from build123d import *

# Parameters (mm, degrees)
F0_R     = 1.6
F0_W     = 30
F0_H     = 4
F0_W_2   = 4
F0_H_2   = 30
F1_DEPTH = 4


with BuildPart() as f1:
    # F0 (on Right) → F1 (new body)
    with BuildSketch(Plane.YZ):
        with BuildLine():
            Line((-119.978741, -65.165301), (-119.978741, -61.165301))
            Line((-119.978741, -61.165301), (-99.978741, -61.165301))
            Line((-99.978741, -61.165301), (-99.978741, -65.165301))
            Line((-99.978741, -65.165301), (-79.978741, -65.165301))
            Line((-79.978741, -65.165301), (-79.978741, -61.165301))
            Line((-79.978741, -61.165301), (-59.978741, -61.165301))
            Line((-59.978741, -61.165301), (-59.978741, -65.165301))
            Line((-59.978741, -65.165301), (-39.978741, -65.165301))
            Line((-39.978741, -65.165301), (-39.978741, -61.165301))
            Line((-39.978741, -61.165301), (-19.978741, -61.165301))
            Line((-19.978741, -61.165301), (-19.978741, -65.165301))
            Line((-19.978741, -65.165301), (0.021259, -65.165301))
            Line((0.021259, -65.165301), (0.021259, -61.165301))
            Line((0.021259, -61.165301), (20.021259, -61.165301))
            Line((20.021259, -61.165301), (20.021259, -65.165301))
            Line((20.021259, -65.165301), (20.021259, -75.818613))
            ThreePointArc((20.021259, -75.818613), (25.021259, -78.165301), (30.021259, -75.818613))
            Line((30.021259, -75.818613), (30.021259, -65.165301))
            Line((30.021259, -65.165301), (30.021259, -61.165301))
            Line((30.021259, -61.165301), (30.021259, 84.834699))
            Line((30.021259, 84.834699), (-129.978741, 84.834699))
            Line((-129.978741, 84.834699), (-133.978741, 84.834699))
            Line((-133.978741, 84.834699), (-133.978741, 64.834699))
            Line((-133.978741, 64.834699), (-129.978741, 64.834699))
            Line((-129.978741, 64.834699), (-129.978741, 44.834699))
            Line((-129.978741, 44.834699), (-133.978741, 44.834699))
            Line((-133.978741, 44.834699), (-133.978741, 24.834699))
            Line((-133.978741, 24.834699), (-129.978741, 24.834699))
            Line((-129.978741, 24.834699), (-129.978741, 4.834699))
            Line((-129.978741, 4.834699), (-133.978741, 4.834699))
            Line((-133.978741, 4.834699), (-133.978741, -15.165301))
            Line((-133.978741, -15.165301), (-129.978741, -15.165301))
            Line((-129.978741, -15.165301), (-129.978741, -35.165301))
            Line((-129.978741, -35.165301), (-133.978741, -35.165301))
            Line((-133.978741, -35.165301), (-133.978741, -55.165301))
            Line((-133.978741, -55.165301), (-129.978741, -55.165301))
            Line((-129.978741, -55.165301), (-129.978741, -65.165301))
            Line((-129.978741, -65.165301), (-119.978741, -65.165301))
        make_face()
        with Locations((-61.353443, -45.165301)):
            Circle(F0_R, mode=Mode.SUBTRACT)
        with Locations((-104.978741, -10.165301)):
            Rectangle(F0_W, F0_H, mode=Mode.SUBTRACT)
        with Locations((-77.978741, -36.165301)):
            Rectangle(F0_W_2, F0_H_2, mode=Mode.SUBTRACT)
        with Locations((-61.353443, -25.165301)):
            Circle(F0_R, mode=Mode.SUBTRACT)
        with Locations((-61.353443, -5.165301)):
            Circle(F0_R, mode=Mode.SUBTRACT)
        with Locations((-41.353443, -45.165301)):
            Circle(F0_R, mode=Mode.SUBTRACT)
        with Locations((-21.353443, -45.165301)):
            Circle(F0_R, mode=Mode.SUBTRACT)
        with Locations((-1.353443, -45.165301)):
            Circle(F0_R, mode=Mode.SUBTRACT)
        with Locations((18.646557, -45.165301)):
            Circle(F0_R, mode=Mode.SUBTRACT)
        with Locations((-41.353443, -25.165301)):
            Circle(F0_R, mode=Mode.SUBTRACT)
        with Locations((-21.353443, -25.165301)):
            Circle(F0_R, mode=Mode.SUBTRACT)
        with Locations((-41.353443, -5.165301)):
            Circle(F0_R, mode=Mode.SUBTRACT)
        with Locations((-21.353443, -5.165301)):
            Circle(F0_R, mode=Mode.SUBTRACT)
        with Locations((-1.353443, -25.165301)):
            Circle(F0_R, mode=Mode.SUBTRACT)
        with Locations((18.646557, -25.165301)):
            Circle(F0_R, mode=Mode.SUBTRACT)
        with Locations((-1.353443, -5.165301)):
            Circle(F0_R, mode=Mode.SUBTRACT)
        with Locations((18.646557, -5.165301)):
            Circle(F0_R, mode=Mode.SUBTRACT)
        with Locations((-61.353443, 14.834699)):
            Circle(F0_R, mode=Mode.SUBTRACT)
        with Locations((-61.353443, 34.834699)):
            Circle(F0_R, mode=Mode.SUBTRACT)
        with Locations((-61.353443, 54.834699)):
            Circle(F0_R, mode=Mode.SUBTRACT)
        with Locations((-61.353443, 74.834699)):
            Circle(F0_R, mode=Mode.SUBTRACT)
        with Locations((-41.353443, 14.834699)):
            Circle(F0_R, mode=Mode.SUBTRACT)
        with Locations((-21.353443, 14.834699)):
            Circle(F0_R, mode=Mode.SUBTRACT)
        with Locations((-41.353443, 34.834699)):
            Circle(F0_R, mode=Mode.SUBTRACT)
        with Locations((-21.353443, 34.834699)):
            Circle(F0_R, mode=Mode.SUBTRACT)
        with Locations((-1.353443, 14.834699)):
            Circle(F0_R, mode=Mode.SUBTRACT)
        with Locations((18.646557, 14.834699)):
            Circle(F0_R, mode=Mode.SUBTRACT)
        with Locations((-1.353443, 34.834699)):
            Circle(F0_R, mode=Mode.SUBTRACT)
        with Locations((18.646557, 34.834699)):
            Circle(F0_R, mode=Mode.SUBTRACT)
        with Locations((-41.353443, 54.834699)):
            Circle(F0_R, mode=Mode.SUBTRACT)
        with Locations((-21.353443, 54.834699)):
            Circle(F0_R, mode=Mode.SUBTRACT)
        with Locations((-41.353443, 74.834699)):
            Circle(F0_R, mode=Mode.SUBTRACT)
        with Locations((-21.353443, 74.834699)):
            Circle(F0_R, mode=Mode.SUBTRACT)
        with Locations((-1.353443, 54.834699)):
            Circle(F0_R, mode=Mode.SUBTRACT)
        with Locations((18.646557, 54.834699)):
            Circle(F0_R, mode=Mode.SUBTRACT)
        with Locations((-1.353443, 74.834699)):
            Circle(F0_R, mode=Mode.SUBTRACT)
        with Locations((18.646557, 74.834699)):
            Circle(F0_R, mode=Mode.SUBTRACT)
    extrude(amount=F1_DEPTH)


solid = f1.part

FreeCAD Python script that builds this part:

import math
import FreeCAD as App
import Part
import Sketcher
Q = App.Units.Quantity


def add_polygon(sketch, points):
    """Adds a closed chain of lines whose ends are joined by coincident constraints."""
    first, n = sketch.GeometryCount, len(points)
    for a, b in zip(points, points[1:] + points[:1]):
        sketch.addGeometry(Part.LineSegment(App.Vector(*a, 0), App.Vector(*b, 0)), False)
    for i in range(n):
        sketch.addConstraint(Sketcher.Constraint("Coincident", first + i, 2, first + (i + 1) % n, 1))

doc = App.newDocument("Part")
body = doc.addObject("PartDesign::Body", "Body")

sketch1 = body.newObject("Sketcher::SketchObject", "Sketch")
sketch1.AttachmentSupport = (doc.getObject("YZ_Plane"), [""])
sketch1.MapMode = "FlatFace"
sketch1.addGeometry(Part.LineSegment(App.Vector(-120, -65.2, 0), App.Vector(-120, -61.2, 0)), False)
sketch1.addGeometry(Part.LineSegment(App.Vector(-120, -61.2, 0), App.Vector(-100, -61.2, 0)), False)
sketch1.addGeometry(Part.LineSegment(App.Vector(-100, -61.2, 0), App.Vector(-100, -65.2, 0)), False)
sketch1.addGeometry(Part.LineSegment(App.Vector(-100, -65.2, 0), App.Vector(-80, -65.2, 0)), False)
sketch1.addGeometry(Part.LineSegment(App.Vector(-80, -65.2, 0), App.Vector(-80, -61.2, 0)), False)
sketch1.addGeometry(Part.LineSegment(App.Vector(-80, -61.2, 0), App.Vector(-60, -61.2, 0)), False)
sketch1.addGeometry(Part.LineSegment(App.Vector(-60, -61.2, 0), App.Vector(-60, -65.2, 0)), False)
sketch1.addGeometry(Part.LineSegment(App.Vector(-60, -65.2, 0), App.Vector(-40, -65.2, 0)), False)
sketch1.addGeometry(Part.LineSegment(App.Vector(-40, -65.2, 0), App.Vector(-40, -61.2, 0)), False)
sketch1.addGeometry(Part.LineSegment(App.Vector(-40, -61.2, 0), App.Vector(-20, -61.2, 0)), False)
sketch1.addGeometry(Part.LineSegment(App.Vector(-20, -61.2, 0), App.Vector(-20, -65.2, 0)), False)
sketch1.addGeometry(Part.LineSegment(App.Vector(-20, -65.2, 0), App.Vector(0, -65.2, 0)), False)
sketch1.addGeometry(Part.LineSegment(App.Vector(0, -65.2, 0), App.Vector(0, -61.2, 0)), False)
sketch1.addGeometry(Part.LineSegment(App.Vector(0, -61.2, 0), App.Vector(20, -61.2, 0)), False)
sketch1.addGeometry(Part.LineSegment(App.Vector(20, -61.2, 0), App.Vector(20, -75.8, 0)), False)
sketch1.addGeometry(Part.ArcOfCircle(Part.Circle(App.Vector(25, -71.7, 0), App.Vector(0, 0, 1), 6.5), math.radians(-140), math.radians(-40)), False)
sketch1.addGeometry(Part.LineSegment(App.Vector(30, -75.8, 0), App.Vector(30, 84.8, 0)), False)
sketch1.addGeometry(Part.LineSegment(App.Vector(30, 84.8, 0), App.Vector(-134, 84.8, 0)), False)
sketch1.addGeometry(Part.LineSegment(App.Vector(-134, 84.8, 0), App.Vector(-134, 64.8, 0)), False)
sketch1.addGeometry(Part.LineSegment(App.Vector(-134, 64.8, 0), App.Vector(-130, 64.8, 0)), False)
sketch1.addGeometry(Part.LineSegment(App.Vector(-130, 64.8, 0), App.Vector(-130, 44.8, 0)), False)
sketch1.addGeometry(Part.LineSegment(App.Vector(-130, 44.8, 0), App.Vector(-134, 44.8, 0)), False)
sketch1.addGeometry(Part.LineSegment(App.Vector(-134, 44.8, 0), App.Vector(-134, 24.8, 0)), False)
sketch1.addGeometry(Part.LineSegment(App.Vector(-134, 24.8, 0), App.Vector(-130, 24.8, 0)), False)
sketch1.addGeometry(Part.LineSegment(App.Vector(-130, 24.8, 0), App.Vector(-130, 4.8, 0)), False)
sketch1.addGeometry(Part.LineSegment(App.Vector(-130, 4.8, 0), App.Vector(-134, 4.8, 0)), False)
sketch1.addGeometry(Part.LineSegment(App.Vector(-134, 4.8, 0), App.Vector(-134, -15.2, 0)), False)
sketch1.addGeometry(Part.LineSegment(App.Vector(-134, -15.2, 0), App.Vector(-130, -15.2, 0)), False)
sketch1.addGeometry(Part.LineSegment(App.Vector(-130, -15.2, 0), App.Vector(-130, -35.2, 0)), False)
sketch1.addGeometry(Part.LineSegment(App.Vector(-130, -35.2, 0), App.Vector(-134, -35.2, 0)), False)
sketch1.addGeometry(Part.LineSegment(App.Vector(-134, -35.2, 0), App.Vector(-134, -55.2, 0)), False)
sketch1.addGeometry(Part.LineSegment(App.Vector(-134, -55.2, 0), App.Vector(-130, -55.2, 0)), False)
sketch1.addGeometry(Part.LineSegment(App.Vector(-130, -55.2, 0), App.Vector(-130, -65.2, 0)), False)
sketch1.addGeometry(Part.LineSegment(App.Vector(-130, -65.2, 0), App.Vector(-120, -65.2, 0)), False)
add_polygon(sketch1, [(-76, -51.2), (-80, -51.2), (-80, -21.2), (-76, -21.2)])
sketch1.addGeometry(Part.Circle(App.Vector(-61.4, -45.2, 0), App.Vector(0, 0, 1), 1.6), False)
sketch1.addGeometry(Part.Circle(App.Vector(-61.4, -25.2, 0), App.Vector(0, 0, 1), 1.6), False)
add_polygon(sketch1, [(-90, -12.2), (-120, -12.2), (-120, -8.2), (-90, -8.2)])
sketch1.addGeometry(Part.Circle(App.Vector(-61.4, -5.2, 0), App.Vector(0, 0, 1), 1.6), False)
sketch1.addGeometry(Part.Circle(App.Vector(-41.4, -45.2, 0), App.Vector(0, 0, 1), 1.6), False)
sketch1.addGeometry(Part.Circle(App.Vector(-21.4, -45.2, 0), App.Vector(0, 0, 1), 1.6), False)
sketch1.addGeometry(Part.Circle(App.Vector(-41.4, -25.2, 0), App.Vector(0, 0, 1), 1.6), False)
sketch1.addGeometry(Part.Circle(App.Vector(-21.4, -25.2, 0), App.Vector(0, 0, 1), 1.6), False)
sketch1.addGeometry(Part.Circle(App.Vector(-1.4, -45.2, 0), App.Vector(0, 0, 1), 1.6), False)
sketch1.addGeometry(Part.Circle(App.Vector(18.6, -45.2, 0), App.Vector(0, 0, 1), 1.6), False)
sketch1.addGeometry(Part.Circle(App.Vector(-1.4, -25.2, 0), App.Vector(0, 0, 1), 1.6), False)
sketch1.addGeometry(Part.Circle(App.Vector(18.6, -25.2, 0), App.Vector(0, 0, 1), 1.6), False)
sketch1.addGeometry(Part.Circle(App.Vector(-41.4, -5.2, 0), App.Vector(0, 0, 1), 1.6), False)
sketch1.addGeometry(Part.Circle(App.Vector(-21.4, -5.2, 0), App.Vector(0, 0, 1), 1.6), False)
sketch1.addGeometry(Part.Circle(App.Vector(-1.4, -5.2, 0), App.Vector(0, 0, 1), 1.6), False)
sketch1.addGeometry(Part.Circle(App.Vector(18.6, -5.2, 0), App.Vector(0, 0, 1), 1.6), False)
sketch1.addGeometry(Part.Circle(App.Vector(-61.4, 14.8, 0), App.Vector(0, 0, 1), 1.6), False)
sketch1.addGeometry(Part.Circle(App.Vector(-61.4, 34.8, 0), App.Vector(0, 0, 1), 1.6), False)
sketch1.addGeometry(Part.Circle(App.Vector(-61.4, 54.8, 0), App.Vector(0, 0, 1), 1.6), False)
sketch1.addGeometry(Part.Circle(App.Vector(-61.4, 74.8, 0), App.Vector(0, 0, 1), 1.6), False)
sketch1.addGeometry(Part.Circle(App.Vector(-41.4, 14.8, 0), App.Vector(0, 0, 1), 1.6), False)
sketch1.addGeometry(Part.Circle(App.Vector(-21.4, 14.8, 0), App.Vector(0, 0, 1), 1.6), False)
sketch1.addGeometry(Part.Circle(App.Vector(-41.4, 34.8, 0), App.Vector(0, 0, 1), 1.6), False)
sketch1.addGeometry(Part.Circle(App.Vector(-21.4, 34.8, 0), App.Vector(0, 0, 1), 1.6), False)
sketch1.addGeometry(Part.Circle(App.Vector(-1.4, 14.8, 0), App.Vector(0, 0, 1), 1.6), False)
sketch1.addGeometry(Part.Circle(App.Vector(18.6, 14.8, 0), App.Vector(0, 0, 1), 1.6), False)
sketch1.addGeometry(Part.Circle(App.Vector(-1.4, 34.8, 0), App.Vector(0, 0, 1), 1.6), False)
sketch1.addGeometry(Part.Circle(App.Vector(18.6, 34.8, 0), App.Vector(0, 0, 1), 1.6), False)
sketch1.addGeometry(Part.Circle(App.Vector(-41.4, 54.8, 0), App.Vector(0, 0, 1), 1.6), False)
sketch1.addGeometry(Part.Circle(App.Vector(-21.4, 54.8, 0), App.Vector(0, 0, 1), 1.6), False)
sketch1.addGeometry(Part.Circle(App.Vector(-41.4, 74.8, 0), App.Vector(0, 0, 1), 1.6), False)
sketch1.addGeometry(Part.Circle(App.Vector(-21.4, 74.8, 0), App.Vector(0, 0, 1), 1.6), False)
sketch1.addGeometry(Part.Circle(App.Vector(-1.4, 54.8, 0), App.Vector(0, 0, 1), 1.6), False)
sketch1.addGeometry(Part.Circle(App.Vector(18.6, 54.8, 0), App.Vector(0, 0, 1), 1.6), False)
sketch1.addGeometry(Part.Circle(App.Vector(-1.4, 74.8, 0), App.Vector(0, 0, 1), 1.6), False)
sketch1.addGeometry(Part.Circle(App.Vector(18.6, 74.8, 0), App.Vector(0, 0, 1), 1.6), False)
sketch1.addConstraint([
    Sketcher.Constraint("Coincident", 0, 2, 1, 1),
    Sketcher.Constraint("Coincident", 1, 2, 2, 1),
    Sketcher.Constraint("Coincident", 2, 2, 3, 1),
    Sketcher.Constraint("Coincident", 3, 2, 4, 1),
    Sketcher.Constraint("Coincident", 4, 2, 5, 1),
    Sketcher.Constraint("Coincident", 5, 2, 6, 1),
    Sketcher.Constraint("Coincident", 6, 2, 7, 1),
    Sketcher.Constraint("Coincident", 7, 2, 8, 1),
    Sketcher.Constraint("Coincident", 8, 2, 9, 1),
    Sketcher.Constraint("Coincident", 9, 2, 10, 1),
    Sketcher.Constraint("Coincident", 10, 2, 11, 1),
    Sketcher.Constraint("Coincident", 11, 2, 12, 1),
    Sketcher.Constraint("Coincident", 12, 2, 13, 1),
    Sketcher.Constraint("Coincident", 13, 2, 14, 1),
    Sketcher.Constraint("Coincident", 14, 2, 15, 1),
    Sketcher.Constraint("Coincident", 15, 2, 16, 1),
    Sketcher.Constraint("Coincident", 16, 2, 17, 1),
    Sketcher.Constraint("Coincident", 17, 2, 18, 1),
    Sketcher.Constraint("Coincident", 18, 2, 19, 1),
    Sketcher.Constraint("Coincident", 19, 2, 20, 1),
    Sketcher.Constraint("Coincident", 20, 2, 21, 1),
    Sketcher.Constraint("Coincident", 21, 2, 22, 1),
    Sketcher.Constraint("Coincident", 22, 2, 23, 1),
    Sketcher.Constraint("Coincident", 23, 2, 24, 1),
    Sketcher.Constraint("Coincident", 24, 2, 25, 1),
    Sketcher.Constraint("Coincident", 25, 2, 26, 1),
    Sketcher.Constraint("Coincident", 26, 2, 27, 1),
    Sketcher.Constraint("Coincident", 27, 2, 28, 1),
    Sketcher.Constraint("Coincident", 28, 2, 29, 1),
    Sketcher.Constraint("Coincident", 29, 2, 30, 1),
    Sketcher.Constraint("Coincident", 30, 2, 31, 1),
    Sketcher.Constraint("Coincident", 31, 2, 32, 1),
    Sketcher.Constraint("Coincident", 32, 2, 33, 1),
    Sketcher.Constraint("Coincident", 33, 2, 0, 1),
    Sketcher.Constraint("Vertical", 0),
    Sketcher.Constraint("Horizontal", 1),
    Sketcher.Constraint("Vertical", 2),
    Sketcher.Constraint("Horizontal", 3),
    Sketcher.Constraint("Vertical", 4),
    Sketcher.Constraint("Horizontal", 5),
    Sketcher.Constraint("Vertical", 6),
    Sketcher.Constraint("Horizontal", 7),
    Sketcher.Constraint("Vertical", 8),
    Sketcher.Constraint("Horizontal", 9),
    Sketcher.Constraint("Vertical", 10),
    Sketcher.Constraint("Horizontal", 11),
    Sketcher.Constraint("Vertical", 12),
    Sketcher.Constraint("Horizontal", 13),
    Sketcher.Constraint("Vertical", 14),
    Sketcher.Constraint("Vertical", 16),
    Sketcher.Constraint("Horizontal", 17),
    Sketcher.Constraint("Vertical", 18),
    Sketcher.Constraint("Horizontal", 19),
    Sketcher.Constraint("Vertical", 20),
    Sketcher.Constraint("Horizontal", 21),
    Sketcher.Constraint("Vertical", 22),
    Sketcher.Constraint("Horizontal", 23),
    Sketcher.Constraint("Vertical", 24),
    Sketcher.Constraint("Horizontal", 25),
    Sketcher.Constraint("Vertical", 26),
    Sketcher.Constraint("Horizontal", 27),
    Sketcher.Constraint("Vertical", 28),
    Sketcher.Constraint("Horizontal", 29),
    Sketcher.Constraint("Vertical", 30),
    Sketcher.Constraint("Horizontal", 31),
    Sketcher.Constraint("Vertical", 32),
    Sketcher.Constraint("Horizontal", 33),
    Sketcher.Constraint("Horizontal", 34),
    Sketcher.Constraint("Vertical", 35),
    Sketcher.Constraint("Horizontal", 36),
    Sketcher.Constraint("Vertical", 37),
    Sketcher.Constraint("Horizontal", 40),
    Sketcher.Constraint("Vertical", 41),
    Sketcher.Constraint("Horizontal", 42),
    Sketcher.Constraint("Vertical", 43),
    Sketcher.Constraint("Equal", 38, 39),
    Sketcher.Constraint("Equal", 39, 44),
    Sketcher.Constraint("Equal", 44, 45),
    Sketcher.Constraint("Equal", 45, 46),
    Sketcher.Constraint("Equal", 46, 47),
    Sketcher.Constraint("Equal", 47, 48),
    Sketcher.Constraint("Equal", 48, 49),
    Sketcher.Constraint("Equal", 49, 50),
    Sketcher.Constraint("Equal", 50, 51),
    Sketcher.Constraint("Equal", 51, 52),
    Sketcher.Constraint("Equal", 52, 53),
    Sketcher.Constraint("Equal", 53, 54),
    Sketcher.Constraint("Equal", 54, 55),
    Sketcher.Constraint("Equal", 55, 56),
    Sketcher.Constraint("Equal", 56, 57),
    Sketcher.Constraint("Equal", 57, 58),
    Sketcher.Constraint("Equal", 58, 59),
    Sketcher.Constraint("Equal", 59, 60),
    Sketcher.Constraint("Equal", 60, 61),
    Sketcher.Constraint("Equal", 61, 62),
    Sketcher.Constraint("Equal", 62, 63),
    Sketcher.Constraint("Equal", 63, 64),
    Sketcher.Constraint("Equal", 64, 65),
    Sketcher.Constraint("Equal", 65, 66),
    Sketcher.Constraint("Equal", 66, 67),
    Sketcher.Constraint("Equal", 67, 68),
    Sketcher.Constraint("Equal", 68, 69),
    Sketcher.Constraint("Equal", 69, 70),
    Sketcher.Constraint("Equal", 70, 71),
    Sketcher.Constraint("Equal", 71, 72),
    Sketcher.Constraint("Equal", 72, 73),
    Sketcher.Constraint("Equal", 73, 74),
    Sketcher.Constraint("Equal", 74, 75),
    Sketcher.Constraint("Equal", 75, 76),
    Sketcher.Constraint("Horizontal", 38, 3, 45, 3),
    Sketcher.Constraint("Horizontal", 45, 3, 46, 3),
    Sketcher.Constraint("Horizontal", 39, 3, 47, 3),
    Sketcher.Constraint("Horizontal", 47, 3, 48, 3),
    Sketcher.Constraint("Horizontal", 46, 3, 49, 3),
    Sketcher.Constraint("Horizontal", 49, 3, 50, 3),
    Sketcher.Constraint("Horizontal", 48, 3, 51, 3),
    Sketcher.Constraint("Horizontal", 51, 3, 52, 3),
    Sketcher.Constraint("Horizontal", 44, 3, 53, 3),
    Sketcher.Constraint("Horizontal", 53, 3, 54, 3),
    Sketcher.Constraint("Horizontal", 54, 3, 55, 3),
    Sketcher.Constraint("Horizontal", 55, 3, 56, 3),
    Sketcher.Constraint("Horizontal", 57, 3, 61, 3),
    Sketcher.Constraint("Horizontal", 61, 3, 62, 3),
    Sketcher.Constraint("Horizontal", 58, 3, 63, 3),
    Sketcher.Constraint("Horizontal", 63, 3, 64, 3),
    Sketcher.Constraint("Horizontal", 62, 3, 65, 3),
    Sketcher.Constraint("Horizontal", 65, 3, 66, 3),
    Sketcher.Constraint("Horizontal", 64, 3, 67, 3),
    Sketcher.Constraint("Horizontal", 67, 3, 68, 3),
    Sketcher.Constraint("Horizontal", 59, 3, 69, 3),
    Sketcher.Constraint("Horizontal", 69, 3, 70, 3),
    Sketcher.Constraint("Horizontal", 60, 3, 71, 3),
    Sketcher.Constraint("Horizontal", 71, 3, 72, 3),
    Sketcher.Constraint("Horizontal", 70, 3, 73, 3),
    Sketcher.Constraint("Horizontal", 73, 3, 74, 3),
    Sketcher.Constraint("Horizontal", 72, 3, 75, 3),
    Sketcher.Constraint("Horizontal", 75, 3, 76, 3),
    Sketcher.Constraint("Horizontal", 1, 2, 4, 2),
    Sketcher.Constraint("Horizontal", 3, 2, 6, 2),
    Sketcher.Constraint("Horizontal", 5, 2, 8, 2),
    Sketcher.Constraint("Horizontal", 7, 2, 10, 2),
    Sketcher.Constraint("Horizontal", 9, 2, 12, 2),
    Sketcher.Constraint("Horizontal", 14, 2, 15, 2),
    Sketcher.Constraint("Horizontal", 11, 2, 32, 2),
    Sketcher.Constraint("Vertical", 38, 3, 39, 3),
    Sketcher.Constraint("Vertical", 39, 3, 44, 3),
    Sketcher.Constraint("Vertical", 45, 3, 47, 3),
    Sketcher.Constraint("Vertical", 46, 3, 48, 3),
    Sketcher.Constraint("Vertical", 49, 3, 51, 3),
    Sketcher.Constraint("Vertical", 50, 3, 52, 3),
    Sketcher.Constraint("Vertical", 47, 3, 53, 3),
    Sketcher.Constraint("Vertical", 48, 3, 54, 3),
    Sketcher.Constraint("Vertical", 51, 3, 55, 3),
    Sketcher.Constraint("Vertical", 52, 3, 56, 3),
    Sketcher.Constraint("Vertical", 44, 3, 57, 3),
    Sketcher.Constraint("Vertical", 57, 3, 58, 3),
    Sketcher.Constraint("Vertical", 58, 3, 59, 3),
    Sketcher.Constraint("Vertical", 59, 3, 60, 3),
    Sketcher.Constraint("Vertical", 53, 3, 61, 3),
    Sketcher.Constraint("Vertical", 54, 3, 62, 3),
    Sketcher.Constraint("Vertical", 61, 3, 63, 3),
    Sketcher.Constraint("Vertical", 62, 3, 64, 3),
    Sketcher.Constraint("Vertical", 55, 3, 65, 3),
    Sketcher.Constraint("Vertical", 56, 3, 66, 3),
    Sketcher.Constraint("Vertical", 65, 3, 67, 3),
    Sketcher.Constraint("Vertical", 66, 3, 68, 3),
    Sketcher.Constraint("Vertical", 63, 3, 69, 3),
    Sketcher.Constraint("Vertical", 64, 3, 70, 3),
    Sketcher.Constraint("Vertical", 69, 3, 71, 3),
    Sketcher.Constraint("Vertical", 70, 3, 72, 3),
    Sketcher.Constraint("Vertical", 67, 3, 73, 3),
    Sketcher.Constraint("Vertical", 68, 3, 74, 3),
    Sketcher.Constraint("Vertical", 73, 3, 75, 3),
    Sketcher.Constraint("Vertical", 74, 3, 76, 3),
    Sketcher.Constraint("Vertical", 18, 2, 21, 2),
    Sketcher.Constraint("Vertical", 20, 2, 23, 2),
    Sketcher.Constraint("Vertical", 22, 2, 25, 2),
    Sketcher.Constraint("Vertical", 24, 2, 27, 2),
    Sketcher.Constraint("Vertical", 26, 2, 29, 2),
    Sketcher.Constraint("Vertical", 28, 2, 31, 2),
    Sketcher.Constraint("Vertical", 4, 2, 34, 2),
    Sketcher.Constraint("Vertical", 33, 2, 40, 2),
    Sketcher.Constraint("Equal", 1, 3),
    Sketcher.Constraint("Equal", 3, 5),
    Sketcher.Constraint("Equal", 5, 7),
    Sketcher.Constraint("Equal", 7, 9),
    Sketcher.Constraint("Equal", 9, 11),
    Sketcher.Constraint("Equal", 11, 13),
    Sketcher.Constraint("Equal", 31, 34),
    Sketcher.Constraint("Equal", 36, 0),
    Sketcher.Constraint("Equal", 13, 18),
    Sketcher.Constraint("Equal", 18, 20),
    Sketcher.Constraint("Equal", 20, 22),
    Sketcher.Constraint("Equal", 22, 24),
    Sketcher.Constraint("Equal", 24, 26),
    Sketcher.Constraint("Equal", 26, 28),
    Sketcher.Constraint("Equal", 28, 30),
    Sketcher.Constraint("Equal", 33, 32),
    Sketcher.Constraint("Equal", 42, 35),
    Sketcher.Constraint("Equal", 12, 41),
    Sketcher.Constraint("Diameter", 38, Q("3.2 mm")),
    Sketcher.Constraint("Radius", 15, Q("6.5 mm")),
    Sketcher.Constraint("DistanceX", 1, 1, 1, 2, Q("20 mm")),
    Sketcher.Constraint("DistanceX", 17, 2, 17, 1, Q("164 mm")),
    Sketcher.Constraint("DistanceX", 19, 1, 19, 2, Q("4 mm")),
    Sketcher.Constraint("DistanceX", 33, 1, 33, 2, Q("10 mm")),
    Sketcher.Constraint("DistanceX", 40, 2, 40, 1, Q("30 mm")),
    Sketcher.Constraint("DistanceY", 16, 1, 16, 2, Q("160.653312 mm")),
    Sketcher.Constraint("DistanceY", 15, 3, -1, 1, Q("71.665301 mm")),
    Sketcher.Constraint("DistanceY", 38, 3, -1, 1, Q("45.165301 mm")),
    Sketcher.Constraint("DistanceY", 39, 3, -1, 1, Q("25.165301 mm")),
    Sketcher.Constraint("DistanceY", 44, 3, -1, 1, Q("5.165301 mm")),
    Sketcher.Constraint("DistanceY", -1, 1, 57, 3, Q("14.834699 mm")),
    Sketcher.Constraint("DistanceY", -1, 1, 58, 3, Q("34.834699 mm")),
    Sketcher.Constraint("DistanceY", -1, 1, 59, 3, Q("54.834699 mm")),
    Sketcher.Constraint("DistanceY", -1, 1, 60, 3, Q("74.834699 mm")),
    Sketcher.Constraint("DistanceY", 34, 2, -1, 1, Q("51.165301 mm")),
    Sketcher.Constraint("DistanceY", 40, 2, -1, 1, Q("12.165301 mm")),
    Sketcher.Constraint("DistanceX", -1, 1, 15, 3, Q("25.021259 mm")),
    Sketcher.Constraint("DistanceX", 38, 3, -1, 1, Q("61.353443 mm")),
    Sketcher.Constraint("DistanceX", 45, 3, -1, 1, Q("41.353443 mm")),
    Sketcher.Constraint("DistanceX", 46, 3, -1, 1, Q("21.353443 mm")),
    Sketcher.Constraint("DistanceX", 49, 3, -1, 1, Q("1.353443 mm")),
    Sketcher.Constraint("DistanceX", -1, 1, 50, 3, Q("18.646557 mm")),
])
pad1 = body.newObject("PartDesign::Pad", "Pad")
pad1.Profile = sketch1
pad1.Length = 4

doc.recompute()
